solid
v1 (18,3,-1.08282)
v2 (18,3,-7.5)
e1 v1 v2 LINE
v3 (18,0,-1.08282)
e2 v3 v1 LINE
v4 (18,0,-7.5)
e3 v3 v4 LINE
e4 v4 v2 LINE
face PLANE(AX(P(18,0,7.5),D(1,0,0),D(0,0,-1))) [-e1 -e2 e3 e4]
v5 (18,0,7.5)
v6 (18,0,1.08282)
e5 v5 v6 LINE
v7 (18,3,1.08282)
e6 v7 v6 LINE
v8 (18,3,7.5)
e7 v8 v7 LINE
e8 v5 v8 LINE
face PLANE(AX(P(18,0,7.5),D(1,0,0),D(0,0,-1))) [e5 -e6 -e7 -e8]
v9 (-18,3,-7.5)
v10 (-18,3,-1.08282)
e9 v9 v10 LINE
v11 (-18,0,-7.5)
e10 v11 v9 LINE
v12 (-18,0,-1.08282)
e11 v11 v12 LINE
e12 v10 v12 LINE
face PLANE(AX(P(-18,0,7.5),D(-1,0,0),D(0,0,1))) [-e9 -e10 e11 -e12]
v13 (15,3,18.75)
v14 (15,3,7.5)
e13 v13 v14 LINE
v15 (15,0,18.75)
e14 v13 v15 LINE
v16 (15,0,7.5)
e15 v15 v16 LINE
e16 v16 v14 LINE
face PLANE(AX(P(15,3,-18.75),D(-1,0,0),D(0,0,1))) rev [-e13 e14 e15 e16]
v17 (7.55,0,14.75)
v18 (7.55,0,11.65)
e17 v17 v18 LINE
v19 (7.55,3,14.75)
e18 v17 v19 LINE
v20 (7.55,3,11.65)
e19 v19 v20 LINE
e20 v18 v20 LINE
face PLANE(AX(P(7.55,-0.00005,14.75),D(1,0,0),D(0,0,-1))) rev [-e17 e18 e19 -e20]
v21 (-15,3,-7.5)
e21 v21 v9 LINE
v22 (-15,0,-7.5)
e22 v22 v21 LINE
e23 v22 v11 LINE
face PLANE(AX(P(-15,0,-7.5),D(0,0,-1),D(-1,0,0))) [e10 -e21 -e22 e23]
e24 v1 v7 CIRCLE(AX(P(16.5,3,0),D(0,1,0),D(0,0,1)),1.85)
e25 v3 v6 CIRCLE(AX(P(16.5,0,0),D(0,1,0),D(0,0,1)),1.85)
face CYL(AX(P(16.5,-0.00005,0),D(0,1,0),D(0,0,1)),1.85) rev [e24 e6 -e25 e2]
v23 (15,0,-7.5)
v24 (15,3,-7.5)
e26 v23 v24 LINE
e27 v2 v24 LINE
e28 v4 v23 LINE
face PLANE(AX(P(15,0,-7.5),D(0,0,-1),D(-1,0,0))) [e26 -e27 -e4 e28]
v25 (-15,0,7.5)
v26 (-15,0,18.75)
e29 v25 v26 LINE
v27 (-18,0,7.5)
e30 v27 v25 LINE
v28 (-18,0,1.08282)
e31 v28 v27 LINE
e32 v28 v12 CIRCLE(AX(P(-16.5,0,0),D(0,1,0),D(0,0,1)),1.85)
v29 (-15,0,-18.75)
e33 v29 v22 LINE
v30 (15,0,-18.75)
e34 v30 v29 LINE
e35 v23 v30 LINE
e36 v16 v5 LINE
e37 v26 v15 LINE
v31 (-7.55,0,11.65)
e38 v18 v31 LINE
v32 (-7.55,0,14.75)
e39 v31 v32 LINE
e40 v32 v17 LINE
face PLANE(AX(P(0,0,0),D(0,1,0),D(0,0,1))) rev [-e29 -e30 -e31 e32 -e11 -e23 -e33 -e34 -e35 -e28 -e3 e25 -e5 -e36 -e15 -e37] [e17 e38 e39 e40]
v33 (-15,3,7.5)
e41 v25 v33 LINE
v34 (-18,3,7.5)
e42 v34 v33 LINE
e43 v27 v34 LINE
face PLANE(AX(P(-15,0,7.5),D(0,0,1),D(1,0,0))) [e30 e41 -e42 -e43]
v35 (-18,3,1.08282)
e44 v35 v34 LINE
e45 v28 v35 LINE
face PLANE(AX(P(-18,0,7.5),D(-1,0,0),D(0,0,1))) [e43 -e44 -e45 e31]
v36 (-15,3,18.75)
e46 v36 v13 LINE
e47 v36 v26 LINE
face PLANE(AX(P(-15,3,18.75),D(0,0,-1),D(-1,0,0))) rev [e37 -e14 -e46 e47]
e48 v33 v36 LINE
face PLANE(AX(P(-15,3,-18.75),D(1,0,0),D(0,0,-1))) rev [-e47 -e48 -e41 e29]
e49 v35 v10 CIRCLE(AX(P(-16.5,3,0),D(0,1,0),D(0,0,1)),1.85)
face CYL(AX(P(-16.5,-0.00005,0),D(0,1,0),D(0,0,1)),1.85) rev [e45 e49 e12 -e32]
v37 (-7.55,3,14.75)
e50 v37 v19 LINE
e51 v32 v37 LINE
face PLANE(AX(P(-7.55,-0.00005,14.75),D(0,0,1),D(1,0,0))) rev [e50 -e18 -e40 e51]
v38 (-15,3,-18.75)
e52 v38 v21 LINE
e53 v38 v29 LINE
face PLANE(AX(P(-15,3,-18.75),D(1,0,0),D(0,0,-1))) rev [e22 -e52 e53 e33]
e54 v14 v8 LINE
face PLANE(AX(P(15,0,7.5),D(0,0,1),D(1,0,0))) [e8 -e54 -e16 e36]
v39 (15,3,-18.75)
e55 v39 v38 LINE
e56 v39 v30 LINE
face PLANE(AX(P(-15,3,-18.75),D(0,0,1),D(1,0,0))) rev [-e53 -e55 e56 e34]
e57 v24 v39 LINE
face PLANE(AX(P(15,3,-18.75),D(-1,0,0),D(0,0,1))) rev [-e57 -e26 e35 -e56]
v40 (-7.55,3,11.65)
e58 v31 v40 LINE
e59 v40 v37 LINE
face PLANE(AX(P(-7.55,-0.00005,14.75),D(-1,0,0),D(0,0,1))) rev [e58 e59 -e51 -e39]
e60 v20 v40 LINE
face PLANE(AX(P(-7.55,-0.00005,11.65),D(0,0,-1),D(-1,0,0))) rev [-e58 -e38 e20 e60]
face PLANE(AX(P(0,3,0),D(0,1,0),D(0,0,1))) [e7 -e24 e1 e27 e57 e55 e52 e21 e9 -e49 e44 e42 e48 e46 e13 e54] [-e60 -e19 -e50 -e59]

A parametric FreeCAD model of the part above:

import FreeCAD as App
import Part
import Sketcher

V = App.Vector
Q = App.Units.Quantity

doc = App.newDocument("Part")
body = doc.addObject("PartDesign::Body", "Body")

# Sketch on XZ plane
sketch1 = body.newObject("Sketcher::SketchObject", "Sketch")
sketch1.AttachmentSupport = (doc.getObject("XZ_Plane"), [""])
sketch1.MapMode = "FlatFace"
sketch1.addGeometry(Part.LineSegment(V(-15, -19, 0), V(-15, 19, 0)), False)
sketch1.addGeometry(Part.LineSegment(V(-15, 19, 0), V(15, 19, 0)), False)
sketch1.addGeometry(Part.LineSegment(V(15, 19, 0), V(15, -19, 0)), False)
sketch1.addGeometry(Part.LineSegment(V(15, -19, 0), V(-15, -19, 0)), False)
sketch1.addConstraint(Sketcher.Constraint("Coincident", 0, 2, 1, 1))
sketch1.addConstraint(Sketcher.Constraint("Coincident", 1, 2, 2, 1))
sketch1.addConstraint(Sketcher.Constraint("Coincident", 2, 2, 3, 1))
sketch1.addConstraint(Sketcher.Constraint("Coincident", 3, 2, 0, 1))
sketch1.addConstraint(Sketcher.Constraint("Vertical", 0))
sketch1.addConstraint(Sketcher.Constraint("Horizontal", 1))
sketch1.addConstraint(Sketcher.Constraint("Vertical", 2))
sketch1.addConstraint(Sketcher.Constraint("Horizontal", 3))
sketch1.addConstraint(Sketcher.Constraint("Symmetric", 0, 2, 2, 2, -1, 1))
sketch1.addConstraint(Sketcher.Constraint("DistanceX", 1, 1, 1, 2, Q("30 mm")))
sketch1.addConstraint(Sketcher.Constraint("DistanceY", 0, 1, 0, 2, Q("37.5 mm")))
pad1 = body.newObject("PartDesign::Pad", "Pad")
pad1.Profile = sketch1
pad1.Length = 3
pad1.Reversed = True

# Sketch on XZ plane
sketch2 = body.newObject("Sketcher::SketchObject", "Sketch001")
sketch2.AttachmentSupport = (doc.getObject("XZ_Plane"), [""])
sketch2.MapMode = "FlatFace"
sketch2.AttachmentOffset = App.Placement(V(0, 0, -3), App.Rotation())
sketch2.addGeometry(Part.LineSegment(V(-18, -7.5, 0), V(-18, 7.5, 0)), False)
sketch2.addGeometry(Part.LineSegment(V(-18, 7.5, 0), V(-15, 7.5, 0)), False)
sketch2.addGeometry(Part.LineSegment(V(-15, 7.5, 0), V(-15, -7.5, 0)), False)
sketch2.addGeometry(Part.LineSegment(V(-15, -7.5, 0), V(-18, -7.5, 0)), False)
sketch2.addGeometry(Part.LineSegment(V(15, -7.5, 0), V(15, 7.5, 0)), False)
sketch2.addGeometry(Part.LineSegment(V(15, 7.5, 0), V(18, 7.5, 0)), False)
sketch2.addGeometry(Part.LineSegment(V(18, 7.5, 0), V(18, -7.5, 0)), False)
sketch2.addGeometry(Part.LineSegment(V(18, -7.5, 0), V(15, -7.5, 0)), False)
sketch2.addConstraint(Sketcher.Constraint("Coincident", 0, 2, 1, 1))
sketch2.addConstraint(Sketcher.Constraint("Coincident", 1, 2, 2, 1))
sketch2.addConstraint(Sketcher.Constraint("Coincident", 2, 2, 3, 1))
sketch2.addConstraint(Sketcher.Constraint("Coincident", 3, 2, 0, 1))
sketch2.addConstraint(Sketcher.Constraint("Coincident", 4, 2, 5, 1))
sketch2.addConstraint(Sketcher.Constraint("Coincident", 5, 2, 6, 1))
sketch2.addConstraint(Sketcher.Constraint("Coincident", 6, 2, 7, 1))
sketch2.addConstraint(Sketcher.Constraint("Coincident", 7, 2, 4, 1))
sketch2.addConstraint(Sketcher.Constraint("Vertical", 0))
sketch2.addConstraint(Sketcher.Constraint("Horizontal", 1))
sketch2.addConstraint(Sketcher.Constraint("Vertical", 2))
sketch2.addConstraint(Sketcher.Constraint("Horizontal", 3))
sketch2.addConstraint(Sketcher.Constraint("Vertical", 4))
sketch2.addConstraint(Sketcher.Constraint("Horizontal", 5))
sketch2.addConstraint(Sketcher.Constraint("Vertical", 6))
sketch2.addConstraint(Sketcher.Constraint("Horizontal", 7))
sketch2.addConstraint(Sketcher.Constraint("Symmetric", 2, 2, 4, 2, -1, 1))
sketch2.addConstraint(Sketcher.Constraint("Symmetric", 0, 2, 6, 2, -1, 1))
sketch2.addConstraint(Sketcher.Constraint("Horizontal", 1, 2, 4, 2))
sketch2.addConstraint(Sketcher.Constraint("DistanceX", 1, 1, 1, 2, Q("3 mm")))
sketch2.addConstraint(Sketcher.Constraint("DistanceY", 0, 1, 0, 2, Q("15 mm")))
sketch2.addConstraint(Sketcher.Constraint("DistanceX", 0, 2, -1, 1, Q("18 mm")))
pad2 = body.newObject("PartDesign::Pad", "Pad001")
pad2.Profile = sketch2
pad2.Length = 3

# Sketch on XZ plane
sketch3 = body.newObject("Sketcher::SketchObject", "Sketch002")
sketch3.AttachmentSupport = (doc.getObject("XZ_Plane"), [""])
sketch3.MapMode = "FlatFace"
sketch3.AttachmentOffset = App.Placement(V(0, 0, -3), App.Rotation())
sketch3.addGeometry(Part.Circle(V(-16.5, 0, 0), V(0, 0, 1), 1.9), False)
sketch3.addGeometry(Part.Circle(V(16.5, 0, 0), V(0, 0, 1), 1.9), False)
sketch3.addConstraint(Sketcher.Constraint("Equal", 0, 1))
sketch3.addConstraint(Sketcher.Constraint("Symmetric", 0, 3, 1, 3, -1, 1))
sketch3.addConstraint(Sketcher.Constraint("PointOnObject", 0, 3, -1))
sketch3.addConstraint(Sketcher.Constraint("Diameter", 0, Q("3.7 mm")))
sketch3.addConstraint(Sketcher.Constraint("DistanceX", 0, 3, 1, 3, Q("33 mm")))
pocket1 = body.newObject("PartDesign::Pocket", "Pocket")
pocket1.Profile = sketch3
pocket1.Type = "ThroughAll"
pocket1.Reversed = True

# Sketch on XZ plane
sketch4 = body.newObject("Sketcher::SketchObject", "Sketch003")
sketch4.AttachmentSupport = (doc.getObject("XZ_Plane"), [""])
sketch4.MapMode = "FlatFace"
sketch4.AttachmentOffset = App.Placement(V(0, 0, -3), App.Rotation())
sketch4.addGeometry(Part.LineSegment(V(-7.5, 11.7, 0), V(-7.5, 14.8, 0)), False)
sketch4.addGeometry(Part.LineSegment(V(-7.5, 14.8, 0), V(7.5, 14.8, 0)), False)
sketch4.addGeometry(Part.LineSegment(V(7.5, 14.8, 0), V(7.5, 11.7, 0)), False)
sketch4.addGeometry(Part.LineSegment(V(7.5, 11.7, 0), V(-7.5, 11.7, 0)), False)
sketch4.addConstraint(Sketcher.Constraint("Coincident", 0, 2, 1, 1))
sketch4.addConstraint(Sketcher.Constraint("Coincident", 1, 2, 2, 1))
sketch4.addConstraint(Sketcher.Constraint("Coincident", 2, 2, 3, 1))
sketch4.addConstraint(Sketcher.Constraint("Coincident", 3, 2, 0, 1))
sketch4.addConstraint(Sketcher.Constraint("Vertical", 0))
sketch4.addConstraint(Sketcher.Constraint("Horizontal", 1))
sketch4.addConstraint(Sketcher.Constraint("Vertical", 2))
sketch4.addConstraint(Sketcher.Constraint("Horizontal", 3))
sketch4.addConstraint(Sketcher.Constraint("DistanceX", 1, 1, 1, 2, Q("15.1 mm")))
sketch4.addConstraint(Sketcher.Constraint("DistanceY", 0, 1, 0, 2, Q("3.1 mm")))
sketch4.addConstraint(Sketcher.Constraint("DistanceX", 0, 2, -1, 1, Q("7.55 mm")))
sketch4.addConstraint(Sketcher.Constraint("DistanceY", -1, 1, 0, 2, Q("14.75 mm")))
pocket2 = body.newObject("PartDesign::Pocket", "Pocket001")
pocket2.Profile = sketch4
pocket2.Type = "ThroughAll"
pocket2.Reversed = True

doc.recompute()
